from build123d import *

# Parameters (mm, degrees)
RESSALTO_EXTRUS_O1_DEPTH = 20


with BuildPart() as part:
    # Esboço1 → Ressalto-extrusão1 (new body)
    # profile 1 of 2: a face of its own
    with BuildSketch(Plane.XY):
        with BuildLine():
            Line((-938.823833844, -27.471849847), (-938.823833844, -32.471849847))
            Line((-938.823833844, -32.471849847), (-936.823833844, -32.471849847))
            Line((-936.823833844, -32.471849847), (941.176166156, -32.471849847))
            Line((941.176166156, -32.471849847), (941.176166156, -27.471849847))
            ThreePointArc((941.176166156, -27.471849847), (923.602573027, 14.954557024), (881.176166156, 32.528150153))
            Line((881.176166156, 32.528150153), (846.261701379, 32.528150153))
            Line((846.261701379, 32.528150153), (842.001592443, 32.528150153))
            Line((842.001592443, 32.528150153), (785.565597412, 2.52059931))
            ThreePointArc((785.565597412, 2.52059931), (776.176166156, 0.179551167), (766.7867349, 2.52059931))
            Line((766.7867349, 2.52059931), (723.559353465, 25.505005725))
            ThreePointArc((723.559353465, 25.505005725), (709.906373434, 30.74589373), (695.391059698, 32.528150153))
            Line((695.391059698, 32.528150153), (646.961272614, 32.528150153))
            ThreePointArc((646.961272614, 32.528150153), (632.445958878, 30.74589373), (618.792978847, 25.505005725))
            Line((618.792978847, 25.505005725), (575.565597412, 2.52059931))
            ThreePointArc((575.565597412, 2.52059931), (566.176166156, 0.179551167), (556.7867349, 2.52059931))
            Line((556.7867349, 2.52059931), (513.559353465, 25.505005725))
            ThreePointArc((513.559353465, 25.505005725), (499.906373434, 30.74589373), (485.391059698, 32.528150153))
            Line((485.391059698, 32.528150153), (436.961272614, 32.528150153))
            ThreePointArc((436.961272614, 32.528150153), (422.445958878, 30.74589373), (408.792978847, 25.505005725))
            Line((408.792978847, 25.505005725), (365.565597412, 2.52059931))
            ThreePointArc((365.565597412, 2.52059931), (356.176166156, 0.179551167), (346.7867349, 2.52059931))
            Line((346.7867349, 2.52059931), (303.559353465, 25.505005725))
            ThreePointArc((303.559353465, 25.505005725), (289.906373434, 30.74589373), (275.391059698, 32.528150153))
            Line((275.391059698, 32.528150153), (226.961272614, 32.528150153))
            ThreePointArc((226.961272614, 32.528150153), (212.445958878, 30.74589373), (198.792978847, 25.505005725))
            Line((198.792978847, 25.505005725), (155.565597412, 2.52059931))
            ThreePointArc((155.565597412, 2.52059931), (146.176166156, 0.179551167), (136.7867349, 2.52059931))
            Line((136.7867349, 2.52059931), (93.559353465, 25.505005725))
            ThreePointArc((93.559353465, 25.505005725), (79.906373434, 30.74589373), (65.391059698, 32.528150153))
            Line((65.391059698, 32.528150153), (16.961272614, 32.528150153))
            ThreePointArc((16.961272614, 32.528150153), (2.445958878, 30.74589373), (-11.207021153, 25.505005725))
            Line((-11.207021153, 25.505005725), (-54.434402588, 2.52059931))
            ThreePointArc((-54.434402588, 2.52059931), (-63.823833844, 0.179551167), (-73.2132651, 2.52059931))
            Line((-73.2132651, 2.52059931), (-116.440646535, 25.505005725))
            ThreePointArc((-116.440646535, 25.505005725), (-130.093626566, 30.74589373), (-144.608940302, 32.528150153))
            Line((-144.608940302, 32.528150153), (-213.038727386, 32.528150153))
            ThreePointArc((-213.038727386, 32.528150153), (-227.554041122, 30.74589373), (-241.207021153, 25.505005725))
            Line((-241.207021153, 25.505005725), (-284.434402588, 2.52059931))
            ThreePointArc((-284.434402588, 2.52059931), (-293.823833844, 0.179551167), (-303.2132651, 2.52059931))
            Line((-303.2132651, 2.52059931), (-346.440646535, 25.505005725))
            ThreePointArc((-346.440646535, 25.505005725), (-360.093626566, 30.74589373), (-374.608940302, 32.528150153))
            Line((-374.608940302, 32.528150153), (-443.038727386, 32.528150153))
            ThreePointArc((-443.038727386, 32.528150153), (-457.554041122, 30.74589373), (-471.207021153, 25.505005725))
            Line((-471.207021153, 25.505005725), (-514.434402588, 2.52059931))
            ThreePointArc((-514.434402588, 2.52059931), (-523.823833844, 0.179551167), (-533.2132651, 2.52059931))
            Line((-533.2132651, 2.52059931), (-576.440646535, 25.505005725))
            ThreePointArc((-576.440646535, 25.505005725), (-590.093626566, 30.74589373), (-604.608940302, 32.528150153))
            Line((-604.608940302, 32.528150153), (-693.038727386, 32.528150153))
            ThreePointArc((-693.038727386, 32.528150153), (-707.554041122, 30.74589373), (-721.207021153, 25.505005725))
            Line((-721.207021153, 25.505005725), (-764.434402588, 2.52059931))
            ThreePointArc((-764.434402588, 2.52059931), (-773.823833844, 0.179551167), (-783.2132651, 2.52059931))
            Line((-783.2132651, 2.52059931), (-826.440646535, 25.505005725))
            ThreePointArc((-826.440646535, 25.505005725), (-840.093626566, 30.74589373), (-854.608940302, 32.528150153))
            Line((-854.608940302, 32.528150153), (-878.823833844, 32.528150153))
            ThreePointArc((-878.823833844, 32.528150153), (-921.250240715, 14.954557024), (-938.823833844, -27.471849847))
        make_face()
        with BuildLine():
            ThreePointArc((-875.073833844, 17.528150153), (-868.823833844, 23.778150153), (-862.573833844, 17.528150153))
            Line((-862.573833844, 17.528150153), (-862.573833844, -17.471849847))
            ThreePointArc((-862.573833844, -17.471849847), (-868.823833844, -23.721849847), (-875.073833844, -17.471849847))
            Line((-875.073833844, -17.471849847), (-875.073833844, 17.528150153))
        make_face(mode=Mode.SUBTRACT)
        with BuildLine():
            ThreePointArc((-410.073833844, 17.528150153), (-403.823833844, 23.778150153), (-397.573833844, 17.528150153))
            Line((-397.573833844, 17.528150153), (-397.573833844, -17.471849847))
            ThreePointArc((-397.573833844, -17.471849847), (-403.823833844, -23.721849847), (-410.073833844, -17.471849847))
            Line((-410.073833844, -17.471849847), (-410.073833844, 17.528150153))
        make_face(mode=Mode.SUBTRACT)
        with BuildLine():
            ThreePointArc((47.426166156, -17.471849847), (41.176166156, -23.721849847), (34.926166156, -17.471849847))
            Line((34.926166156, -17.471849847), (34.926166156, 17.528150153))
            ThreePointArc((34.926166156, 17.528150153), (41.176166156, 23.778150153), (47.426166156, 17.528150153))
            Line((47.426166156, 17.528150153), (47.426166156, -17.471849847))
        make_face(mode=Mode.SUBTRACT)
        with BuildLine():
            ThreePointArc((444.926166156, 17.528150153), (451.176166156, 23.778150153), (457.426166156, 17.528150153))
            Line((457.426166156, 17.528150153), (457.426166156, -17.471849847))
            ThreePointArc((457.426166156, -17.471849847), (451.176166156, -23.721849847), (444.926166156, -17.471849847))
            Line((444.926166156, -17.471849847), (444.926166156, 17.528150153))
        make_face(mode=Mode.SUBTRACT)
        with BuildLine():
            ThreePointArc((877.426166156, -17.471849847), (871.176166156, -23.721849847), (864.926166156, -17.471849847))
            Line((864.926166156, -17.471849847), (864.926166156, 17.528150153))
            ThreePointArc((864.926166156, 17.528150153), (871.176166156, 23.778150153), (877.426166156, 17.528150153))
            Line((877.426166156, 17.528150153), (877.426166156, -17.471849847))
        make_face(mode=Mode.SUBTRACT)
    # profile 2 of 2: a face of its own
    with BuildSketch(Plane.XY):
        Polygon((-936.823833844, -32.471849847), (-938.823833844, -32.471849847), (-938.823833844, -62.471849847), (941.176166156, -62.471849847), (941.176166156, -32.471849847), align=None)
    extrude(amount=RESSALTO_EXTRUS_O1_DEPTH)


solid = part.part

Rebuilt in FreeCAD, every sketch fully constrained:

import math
import FreeCAD as App
import Part
import Sketcher
Q = App.Units.Quantity

doc = App.newDocument("Part")
body = doc.addObject("PartDesign::Body", "Body")

# Sketch on XY plane
sketch1 = body.newObject("Sketcher::SketchObject", "Sketch")
sketch1.AttachmentSupport = (doc.getObject("XY_Plane"), [""])
sketch1.MapMode = "FlatFace"
sketch1.addGeometry([
    Part.LineSegment(App.Vector(-938.823834, -27.47185, 0), App.Vector(-938.823834, -62.47185, 0)),  # 0
    Part.LineSegment(App.Vector(-938.823834, -62.47185, 0), App.Vector(941.176166, -62.47185, 0)),  # 1
    Part.LineSegment(App.Vector(941.176166, -62.47185, 0), App.Vector(941.176166, -27.47185, 0)),  # 2
    Part.ArcOfCircle(Part.Circle(App.Vector(881.176166, -27.47185, 0), App.Vector(0, 0, 1), 60), math.radians(0), math.radians(90)),  # 3
    Part.LineSegment(App.Vector(881.176166, 32.52815, 0), App.Vector(842.001592, 32.52815, 0)),  # 4
    Part.LineSegment(App.Vector(842.001592, 32.52815, 0), App.Vector(785.565597, 2.520599, 0)),  # 5
    Part.ArcOfCircle(Part.Circle(App.Vector(776.176166, 20.179551, 0), App.Vector(0, 0, 1), 20), math.radians(-118), math.radians(-62)),  # 6
    Part.LineSegment(App.Vector(766.786735, 2.520599, 0), App.Vector(723.559353, 25.505006, 0)),  # 7
    Part.ArcOfCircle(Part.Circle(App.Vector(695.39106, -27.47185, 0), App.Vector(0, 0, 1), 60), math.radians(62), math.radians(90)),  # 8
    Part.LineSegment(App.Vector(695.39106, 32.52815, 0), App.Vector(646.961273, 32.52815, 0)),  # 9
    Part.ArcOfCircle(Part.Circle(App.Vector(646.961273, -27.47185, 0), App.Vector(0, 0, 1), 60), math.radians(90), math.radians(118)),  # 10
    Part.LineSegment(App.Vector(618.792979, 25.505006, 0), App.Vector(575.565597, 2.520599, 0)),  # 11
    Part.ArcOfCircle(Part.Circle(App.Vector(566.176166, 20.179551, 0), App.Vector(0, 0, 1), 20), math.radians(-118), math.radians(-62)),  # 12
    Part.LineSegment(App.Vector(556.786735, 2.520599, 0), App.Vector(513.559353, 25.505006, 0)),  # 13
    Part.ArcOfCircle(Part.Circle(App.Vector(485.39106, -27.47185, 0), App.Vector(0, 0, 1), 60), math.radians(62), math.radians(90)),  # 14
    Part.LineSegment(App.Vector(485.39106, 32.52815, 0), App.Vector(436.961273, 32.52815, 0)),  # 15
    Part.ArcOfCircle(Part.Circle(App.Vector(436.961273, -27.47185, 0), App.Vector(0, 0, 1), 60), math.radians(90), math.radians(118)),  # 16
    Part.LineSegment(App.Vector(408.792979, 25.505006, 0), App.Vector(365.565597, 2.520599, 0)),  # 17
    Part.ArcOfCircle(Part.Circle(App.Vector(356.176166, 20.179551, 0), App.Vector(0, 0, 1), 20), math.radians(-118), math.radians(-62)),  # 18
    Part.LineSegment(App.Vector(346.786735, 2.520599, 0), App.Vector(303.559353, 25.505006, 0)),  # 19
    Part.ArcOfCircle(Part.Circle(App.Vector(275.39106, -27.47185, 0), App.Vector(0, 0, 1), 60), math.radians(62), math.radians(90)),  # 20
    Part.LineSegment(App.Vector(275.39106, 32.52815, 0), App.Vector(226.961273, 32.52815, 0)),  # 21
    Part.ArcOfCircle(Part.Circle(App.Vector(226.961273, -27.47185, 0), App.Vector(0, 0, 1), 60), math.radians(90), math.radians(118)),  # 22
    Part.LineSegment(App.Vector(198.792979, 25.505006, 0), App.Vector(155.565597, 2.520599, 0)),  # 23
    Part.ArcOfCircle(Part.Circle(App.Vector(146.176166, 20.179551, 0), App.Vector(0, 0, 1), 20), math.radians(-118), math.radians(-62)),  # 24
    Part.LineSegment(App.Vector(136.786735, 2.520599, 0), App.Vector(93.559353, 25.505006, 0)),  # 25
    Part.ArcOfCircle(Part.Circle(App.Vector(65.39106, -27.47185, 0), App.Vector(0, 0, 1), 60), math.radians(62), math.radians(90)),  # 26
    Part.LineSegment(App.Vector(65.39106, 32.52815, 0), App.Vector(16.961273, 32.52815, 0)),  # 27
    Part.ArcOfCircle(Part.Circle(App.Vector(16.961273, -27.47185, 0), App.Vector(0, 0, 1), 60), math.radians(90), math.radians(118)),  # 28
    Part.LineSegment(App.Vector(-11.207021, 25.505006, 0), App.Vector(-54.434403, 2.520599, 0)),  # 29
    Part.ArcOfCircle(Part.Circle(App.Vector(-63.823834, 20.179551, 0), App.Vector(0, 0, 1), 20), math.radians(-118), math.radians(-62)),  # 30
    Part.LineSegment(App.Vector(-73.213265, 2.520599, 0), App.Vector(-116.440647, 25.505006, 0)),  # 31
    Part.ArcOfCircle(Part.Circle(App.Vector(-144.60894, -27.47185, 0), App.Vector(0, 0, 1), 60), math.radians(62), math.radians(90)),  # 32
    Part.LineSegment(App.Vector(-144.60894, 32.52815, 0), App.Vector(-213.038727, 32.52815, 0)),  # 33
    Part.ArcOfCircle(Part.Circle(App.Vector(-213.038727, -27.47185, 0), App.Vector(0, 0, 1), 60), math.radians(90), math.radians(118)),  # 34
    Part.LineSegment(App.Vector(-241.207021, 25.505006, 0), App.Vector(-284.434403, 2.520599, 0)),  # 35
    Part.ArcOfCircle(Part.Circle(App.Vector(-293.823834, 20.179551, 0), App.Vector(0, 0, 1), 20), math.radians(-118), math.radians(-62)),  # 36
    Part.LineSegment(App.Vector(-303.213265, 2.520599, 0), App.Vector(-346.440647, 25.505006, 0)),  # 37
    Part.ArcOfCircle(Part.Circle(App.Vector(-374.60894, -27.47185, 0), App.Vector(0, 0, 1), 60), math.radians(62), math.radians(90)),  # 38
    Part.LineSegment(App.Vector(-374.60894, 32.52815, 0), App.Vector(-443.038727, 32.52815, 0)),  # 39
    Part.ArcOfCircle(Part.Circle(App.Vector(-443.038727, -27.47185, 0), App.Vector(0, 0, 1), 60), math.radians(90), math.radians(118)),  # 40
    Part.LineSegment(App.Vector(-471.207021, 25.505006, 0), App.Vector(-514.434403, 2.520599, 0)),  # 41
    Part.ArcOfCircle(Part.Circle(App.Vector(-523.823834, 20.179551, 0), App.Vector(0, 0, 1), 20), math.radians(-118), math.radians(-62)),  # 42
    Part.LineSegment(App.Vector(-533.213265, 2.520599, 0), App.Vector(-576.440647, 25.505006, 0)),  # 43
    Part.ArcOfCircle(Part.Circle(App.Vector(-604.60894, -27.47185, 0), App.Vector(0, 0, 1), 60), math.radians(62), math.radians(90)),  # 44
    Part.LineSegment(App.Vector(-604.60894, 32.52815, 0), App.Vector(-693.038727, 32.52815, 0)),  # 45
    Part.ArcOfCircle(Part.Circle(App.Vector(-693.038727, -27.47185, 0), App.Vector(0, 0, 1), 60), math.radians(90), math.radians(118)),  # 46
    Part.LineSegment(App.Vector(-721.207021, 25.505006, 0), App.Vector(-764.434403, 2.520599, 0)),  # 47
    Part.ArcOfCircle(Part.Circle(App.Vector(-773.823834, 20.179551, 0), App.Vector(0, 0, 1), 20), math.radians(-118), math.radians(-62)),  # 48
    Part.LineSegment(App.Vector(-783.213265, 2.520599, 0), App.Vector(-826.440647, 25.505006, 0)),  # 49
    Part.ArcOfCircle(Part.Circle(App.Vector(-854.60894, -27.47185, 0), App.Vector(0, 0, 1), 60), math.radians(62), math.radians(90)),  # 50
    Part.LineSegment(App.Vector(-854.60894, 32.52815, 0), App.Vector(-878.823834, 32.52815, 0)),  # 51
    Part.ArcOfCircle(Part.Circle(App.Vector(-878.823834, -27.47185, 0), App.Vector(0, 0, 1), 60), math.radians(90), math.radians(180)),  # 52
    Part.LineSegment(App.Vector(-875.073834, -17.47185, 0), App.Vector(-875.073834, 17.52815, 0)),  # 53
    Part.ArcOfCircle(Part.Circle(App.Vector(-868.823834, 17.52815, 0), App.Vector(0, 0, 1), 6.25), math.radians(0), math.radians(180)),  # 54
    Part.LineSegment(App.Vector(-862.573834, 17.52815, 0), App.Vector(-862.573834, -17.47185, 0)),  # 55
    Part.ArcOfCircle(Part.Circle(App.Vector(-868.823834, -17.47185, 0), App.Vector(0, 0, 1), 6.25), math.radians(180), math.radians(360)),  # 56
    Part.LineSegment(App.Vector(-410.073834, -17.47185, 0), App.Vector(-410.073834, 17.52815, 0)),  # 57
    Part.ArcOfCircle(Part.Circle(App.Vector(-403.823834, 17.52815, 0), App.Vector(0, 0, 1), 6.25), math.radians(0), math.radians(180)),  # 58
    Part.LineSegment(App.Vector(-397.573834, 17.52815, 0), App.Vector(-397.573834, -17.47185, 0)),  # 59
    Part.ArcOfCircle(Part.Circle(App.Vector(-403.823834, -17.47185, 0), App.Vector(0, 0, 1), 6.25), math.radians(180), math.radians(360)),  # 60
    Part.LineSegment(App.Vector(47.426166, 17.52815, 0), App.Vector(47.426166, -17.47185, 0)),  # 61
    Part.ArcOfCircle(Part.Circle(App.Vector(41.176166, -17.47185, 0), App.Vector(0, 0, 1), 6.25), math.radians(180), math.radians(360)),  # 62
    Part.LineSegment(App.Vector(34.926166, -17.47185, 0), App.Vector(34.926166, 17.52815, 0)),  # 63
    Part.ArcOfCircle(Part.Circle(App.Vector(41.176166, 17.52815, 0), App.Vector(0, 0, 1), 6.25), math.radians(0), math.radians(180)),  # 64
    Part.LineSegment(App.Vector(444.926166, -17.47185, 0), App.Vector(444.926166, 17.52815, 0)),  # 65
    Part.ArcOfCircle(Part.Circle(App.Vector(451.176166, 17.52815, 0), App.Vector(0, 0, 1), 6.25), math.radians(0), math.radians(180)),  # 66
    Part.LineSegment(App.Vector(457.426166, 17.52815, 0), App.Vector(457.426166, -17.47185, 0)),  # 67
    Part.ArcOfCircle(Part.Circle(App.Vector(451.176166, -17.47185, 0), App.Vector(0, 0, 1), 6.25), math.radians(180), math.radians(360)),  # 68
    Part.LineSegment(App.Vector(877.426166, 17.52815, 0), App.Vector(877.426166, -17.47185, 0)),  # 69
    Part.ArcOfCircle(Part.Circle(App.Vector(871.176166, -17.47185, 0), App.Vector(0, 0, 1), 6.25), math.radians(180), math.radians(360)),  # 70
    Part.LineSegment(App.Vector(864.926166, -17.47185, 0), App.Vector(864.926166, 17.52815, 0)),  # 71
    Part.ArcOfCircle(Part.Circle(App.Vector(871.176166, 17.52815, 0), App.Vector(0, 0, 1), 6.25), math.radians(0), math.radians(180)),  # 72
], False)
sketch1.addConstraint([
    Sketcher.Constraint("Coincident", 0, 2, 1, 1),
    Sketcher.Constraint("Coincident", 1, 2, 2, 1),
    Sketcher.Constraint("Tangent", 2, 2, 3, 1),
    Sketcher.Constraint("Tangent", 3, 2, 4, 1),
    Sketcher.Constraint("Coincident", 4, 2, 5, 1),
    Sketcher.Constraint("Tangent", 5, 2, 6, 2),
    Sketcher.Constraint("Tangent", 6, 1, 7, 1),
    Sketcher.Constraint("Tangent", 7, 2, 8, 1),
    Sketcher.Constraint("Tangent", 8, 2, 9, 1),
    Sketcher.Constraint("Tangent", 9, 2, 10, 1),
    Sketcher.Constraint("Tangent", 10, 2, 11, 1),
    Sketcher.Constraint("Tangent", 11, 2, 12, 2),
    Sketcher.Constraint("Tangent", 12, 1, 13, 1),
    Sketcher.Constraint("Tangent", 13, 2, 14, 1),
    Sketcher.Constraint("Tangent", 14, 2, 15, 1),
    Sketcher.Constraint("Tangent", 15, 2, 16, 1),
    Sketcher.Constraint("Tangent", 16, 2, 17, 1),
    Sketcher.Constraint("Tangent", 17, 2, 18, 2),
    Sketcher.Constraint("Tangent", 18, 1, 19, 1),
    Sketcher.Constraint("Tangent", 19, 2, 20, 1),
    Sketcher.Constraint("Tangent", 20, 2, 21, 1),
    Sketcher.Constraint("Tangent", 21, 2, 22, 1),
    Sketcher.Constraint("Tangent", 22, 2, 23, 1),
    Sketcher.Constraint("Tangent", 23, 2, 24, 2),
    Sketcher.Constraint("Tangent", 24, 1, 25, 1),
    Sketcher.Constraint("Tangent", 25, 2, 26, 1),
    Sketcher.Constraint("Tangent", 26, 2, 27, 1),
    Sketcher.Constraint("Tangent", 27, 2, 28, 1),
    Sketcher.Constraint("Tangent", 28, 2, 29, 1),
    Sketcher.Constraint("Tangent", 29, 2, 30, 2),
    Sketcher.Constraint("Tangent", 30, 1, 31, 1),
    Sketcher.Constraint("Tangent", 31, 2, 32, 1),
    Sketcher.Constraint("Tangent", 32, 2, 33, 1),
    Sketcher.Constraint("Tangent", 33, 2, 34, 1),
    Sketcher.Constraint("Tangent", 34, 2, 35, 1),
    Sketcher.Constraint("Tangent", 35, 2, 36, 2),
    Sketcher.Constraint("Tangent", 36, 1, 37, 1),
    Sketcher.Constraint("Tangent", 37, 2, 38, 1),
    Sketcher.Constraint("Tangent", 38, 2, 39, 1),
    Sketcher.Constraint("Tangent", 39, 2, 40, 1),
    Sketcher.Constraint("Tangent", 40, 2, 41, 1),
    Sketcher.Constraint("Tangent", 41, 2, 42, 2),
    Sketcher.Constraint("Tangent", 42, 1, 43, 1),
    Sketcher.Constraint("Tangent", 43, 2, 44, 1),
    Sketcher.Constraint("Tangent", 44, 2, 45, 1),
    Sketcher.Constraint("Tangent", 45, 2, 46, 1),
    Sketcher.Constraint("Tangent", 46, 2, 47, 1),
    Sketcher.Constraint("Tangent", 47, 2, 48, 2),
    Sketcher.Constraint("Tangent", 48, 1, 49, 1),
    Sketcher.Constraint("Tangent", 49, 2, 50, 1),
    Sketcher.Constraint("Tangent", 50, 2, 51, 1),
    Sketcher.Constraint("Tangent", 51, 2, 52, 1),
    Sketcher.Constraint("Tangent", 52, 2, 0, 1),
    Sketcher.Constraint("Tangent", 53, 2, 54, 2),
    Sketcher.Constraint("Tangent", 54, 1, 55, 1),
    Sketcher.Constraint("Tangent", 55, 2, 56, 2),
    Sketcher.Constraint("Tangent", 56, 1, 53, 1),
    Sketcher.Constraint("Tangent", 57, 2, 58, 2),
    Sketcher.Constraint("Tangent", 58, 1, 59, 1),
    Sketcher.Constraint("Tangent", 59, 2, 60, 2),
    Sketcher.Constraint("Tangent", 60, 1, 57, 1),
    Sketcher.Constraint("Tangent", 61, 2, 62, 2),
    Sketcher.Constraint("Tangent", 62, 1, 63, 1),
    Sketcher.Constraint("Tangent", 63, 2, 64, 2),
    Sketcher.Constraint("Tangent", 64, 1, 61, 1),
    Sketcher.Constraint("Tangent", 65, 2, 66, 2),
    Sketcher.Constraint("Tangent", 66, 1, 67, 1),
    Sketcher.Constraint("Tangent", 67, 2, 68, 2),
    Sketcher.Constraint("Tangent", 68, 1, 65, 1),
    Sketcher.Constraint("Tangent", 69, 2, 70, 2),
    Sketcher.Constraint("Tangent", 70, 1, 71, 1),
    Sketcher.Constraint("Tangent", 71, 2, 72, 2),
    Sketcher.Constraint("Tangent", 72, 1, 69, 1),
    Sketcher.Constraint("Vertical", 0),
    Sketcher.Constraint("Horizontal", 1),
    Sketcher.Constraint("Vertical", 2),
    Sketcher.Constraint("Horizontal", 4),
    Sketcher.Constraint("Horizontal", 9),
    Sketcher.Constraint("Horizontal", 15),
    Sketcher.Constraint("Horizontal", 21),
    Sketcher.Constraint("Horizontal", 27),
    Sketcher.Constraint("Horizontal", 33),
    Sketcher.Constraint("Horizontal", 39),
    Sketcher.Constraint("Horizontal", 45),
    Sketcher.Constraint("Horizontal", 51),
    Sketcher.Constraint("Vertical", 53),
    Sketcher.Constraint("Vertical", 55),
    Sketcher.Constraint("Vertical", 57),
    Sketcher.Constraint("Vertical", 59),
    Sketcher.Constraint("Vertical", 61),
    Sketcher.Constraint("Vertical", 63),
    Sketcher.Constraint("Vertical", 65),
    Sketcher.Constraint("Vertical", 67),
    Sketcher.Constraint("Vertical", 69),
    Sketcher.Constraint("Vertical", 71),
    Sketcher.Constraint("Equal", 3, 8),
    Sketcher.Constraint("Equal", 8, 10),
    Sketcher.Constraint("Equal", 6, 12),
    Sketcher.Constraint("Equal", 10, 14),
    Sketcher.Constraint("Equal", 14, 16),
    Sketcher.Constraint("Equal", 12, 18),
    Sketcher.Constraint("Equal", 16, 20),
    Sketcher.Constraint("Equal", 20, 22),
    Sketcher.Constraint("Equal", 18, 24),
    Sketcher.Constraint("Equal", 22, 26),
    Sketcher.Constraint("Equal", 26, 28),
    Sketcher.Constraint("Equal", 24, 30),
    Sketcher.Constraint("Equal", 28, 32),
    Sketcher.Constraint("Equal", 32, 34),
    Sketcher.Constraint("Equal", 30, 36),
    Sketcher.Constraint("Equal", 34, 38),
    Sketcher.Constraint("Equal", 38, 40),
    Sketcher.Constraint("Equal", 36, 42),
    Sketcher.Constraint("Equal", 40, 44),
    Sketcher.Constraint("Equal", 44, 46),
    Sketcher.Constraint("Equal", 42, 48),
    Sketcher.Constraint("Equal", 46, 50),
    Sketcher.Constraint("Equal", 50, 52),
    Sketcher.Constraint("Equal", 56, 58),
    Sketcher.Constraint("Equal", 60, 62),
    Sketcher.Constraint("Equal", 64, 66),
    Sketcher.Constraint("Equal", 68, 70),
    Sketcher.Constraint("Parallel", 5, 11),
    Sketcher.Constraint("Parallel", 7, 13),
    Sketcher.Constraint("Parallel", 11, 17),
    Sketcher.Constraint("Parallel", 13, 19),
    Sketcher.Constraint("Parallel", 17, 23),
    Sketcher.Constraint("Parallel", 19, 25),
    Sketcher.Constraint("Parallel", 23, 29),
    Sketcher.Constraint("Parallel", 25, 31),
    Sketcher.Constraint("Parallel", 29, 35),
    Sketcher.Constraint("Parallel", 31, 37),
    Sketcher.Constraint("Parallel", 35, 41),
    Sketcher.Constraint("Parallel", 37, 43),
    Sketcher.Constraint("Parallel", 41, 47),
    Sketcher.Constraint("Parallel", 43, 49),
    Sketcher.Constraint("Horizontal", 3, 3, 8, 3),
    Sketcher.Constraint("Horizontal", 6, 3, 12, 3),
    Sketcher.Constraint("Horizontal", 10, 3, 14, 3),
    Sketcher.Constraint("Horizontal", 12, 3, 18, 3),
    Sketcher.Constraint("Horizontal", 16, 3, 20, 3),
    Sketcher.Constraint("Horizontal", 18, 3, 24, 3),
    Sketcher.Constraint("Horizontal", 22, 3, 26, 3),
    Sketcher.Constraint("Horizontal", 24, 3, 30, 3),
    Sketcher.Constraint("Horizontal", 28, 3, 32, 3),
    Sketcher.Constraint("Horizontal", 30, 3, 36, 3),
    Sketcher.Constraint("Horizontal", 34, 3, 38, 3),
    Sketcher.Constraint("Horizontal", 36, 3, 42, 3),
    Sketcher.Constraint("Horizontal", 40, 3, 44, 3),
    Sketcher.Constraint("Horizontal", 42, 3, 48, 3),
    Sketcher.Constraint("Horizontal", 46, 3, 50, 3),
    Sketcher.Constraint("Horizontal", 54, 3, 58, 3),
    Sketcher.Constraint("Horizontal", 56, 3, 60, 3),
    Sketcher.Constraint("Horizontal", 60, 3, 62, 3),
    Sketcher.Constraint("Horizontal", 58, 3, 64, 3),
    Sketcher.Constraint("Horizontal", 64, 3, 66, 3),
    Sketcher.Constraint("Horizontal", 62, 3, 68, 3),
    Sketcher.Constraint("Horizontal", 68, 3, 70, 3),
    Sketcher.Constraint("Horizontal", 66, 3, 72, 3),
    Sketcher.Constraint("Horizontal", 5, 2, 6, 1),
    Sketcher.Constraint("Equal", 9, 15),
    Sketcher.Constraint("Equal", 15, 21),
    Sketcher.Constraint("Equal", 21, 27),
    Sketcher.Constraint("Equal", 33, 39),
    Sketcher.Constraint("Equal", 2, 53),
    Sketcher.Constraint("Radius", 3, 60.0),
    Sketcher.Constraint("Radius", 6, 20.0),
    Sketcher.Constraint("DistanceX", 1, 1, 1, 2, 1880.0),
    Sketcher.Constraint("DistanceY", 0, 2, 0, 1, 35.0),
    Sketcher.Constraint("Angle", 5, Q("-152 deg")),
    Sketcher.Constraint("Radius", 54, 6.25),
    Sketcher.Constraint("DistanceY", -1, 1, 5, 2, 2.520599),
    Sketcher.Constraint("DistanceX", 4, 2, 4, 1, 39.174574),
    Sketcher.Constraint("DistanceX", 9, 2, 9, 1, 48.429787),
    Sketcher.Constraint("DistanceX", 33, 2, 33, 1, 68.429787),
    Sketcher.Constraint("DistanceX", 45, 2, 45, 1, 88.429787),
    Sketcher.Constraint("DistanceX", 51, 2, 51, 1, 24.214894),
    Sketcher.Constraint("DistanceX", -1, 1, 8, 3, 695.39106),
    Sketcher.Constraint("DistanceY", -1, 1, 54, 3, 17.52815),
    Sketcher.Constraint("DistanceX", 54, 3, -1, 1, 868.823834),
    Sketcher.Constraint("DistanceX", 58, 3, -1, 1, 403.823834),
    Sketcher.Constraint("DistanceX", -1, 1, 62, 3, 41.176166),
    Sketcher.Constraint("DistanceX", -1, 1, 66, 3, 451.176166),
    Sketcher.Constraint("DistanceX", -1, 1, 70, 3, 871.176166),
])
pad1 = body.newObject("PartDesign::Pad", "Pad")
pad1.Profile = sketch1
pad1.Length = 20

doc.recompute()
